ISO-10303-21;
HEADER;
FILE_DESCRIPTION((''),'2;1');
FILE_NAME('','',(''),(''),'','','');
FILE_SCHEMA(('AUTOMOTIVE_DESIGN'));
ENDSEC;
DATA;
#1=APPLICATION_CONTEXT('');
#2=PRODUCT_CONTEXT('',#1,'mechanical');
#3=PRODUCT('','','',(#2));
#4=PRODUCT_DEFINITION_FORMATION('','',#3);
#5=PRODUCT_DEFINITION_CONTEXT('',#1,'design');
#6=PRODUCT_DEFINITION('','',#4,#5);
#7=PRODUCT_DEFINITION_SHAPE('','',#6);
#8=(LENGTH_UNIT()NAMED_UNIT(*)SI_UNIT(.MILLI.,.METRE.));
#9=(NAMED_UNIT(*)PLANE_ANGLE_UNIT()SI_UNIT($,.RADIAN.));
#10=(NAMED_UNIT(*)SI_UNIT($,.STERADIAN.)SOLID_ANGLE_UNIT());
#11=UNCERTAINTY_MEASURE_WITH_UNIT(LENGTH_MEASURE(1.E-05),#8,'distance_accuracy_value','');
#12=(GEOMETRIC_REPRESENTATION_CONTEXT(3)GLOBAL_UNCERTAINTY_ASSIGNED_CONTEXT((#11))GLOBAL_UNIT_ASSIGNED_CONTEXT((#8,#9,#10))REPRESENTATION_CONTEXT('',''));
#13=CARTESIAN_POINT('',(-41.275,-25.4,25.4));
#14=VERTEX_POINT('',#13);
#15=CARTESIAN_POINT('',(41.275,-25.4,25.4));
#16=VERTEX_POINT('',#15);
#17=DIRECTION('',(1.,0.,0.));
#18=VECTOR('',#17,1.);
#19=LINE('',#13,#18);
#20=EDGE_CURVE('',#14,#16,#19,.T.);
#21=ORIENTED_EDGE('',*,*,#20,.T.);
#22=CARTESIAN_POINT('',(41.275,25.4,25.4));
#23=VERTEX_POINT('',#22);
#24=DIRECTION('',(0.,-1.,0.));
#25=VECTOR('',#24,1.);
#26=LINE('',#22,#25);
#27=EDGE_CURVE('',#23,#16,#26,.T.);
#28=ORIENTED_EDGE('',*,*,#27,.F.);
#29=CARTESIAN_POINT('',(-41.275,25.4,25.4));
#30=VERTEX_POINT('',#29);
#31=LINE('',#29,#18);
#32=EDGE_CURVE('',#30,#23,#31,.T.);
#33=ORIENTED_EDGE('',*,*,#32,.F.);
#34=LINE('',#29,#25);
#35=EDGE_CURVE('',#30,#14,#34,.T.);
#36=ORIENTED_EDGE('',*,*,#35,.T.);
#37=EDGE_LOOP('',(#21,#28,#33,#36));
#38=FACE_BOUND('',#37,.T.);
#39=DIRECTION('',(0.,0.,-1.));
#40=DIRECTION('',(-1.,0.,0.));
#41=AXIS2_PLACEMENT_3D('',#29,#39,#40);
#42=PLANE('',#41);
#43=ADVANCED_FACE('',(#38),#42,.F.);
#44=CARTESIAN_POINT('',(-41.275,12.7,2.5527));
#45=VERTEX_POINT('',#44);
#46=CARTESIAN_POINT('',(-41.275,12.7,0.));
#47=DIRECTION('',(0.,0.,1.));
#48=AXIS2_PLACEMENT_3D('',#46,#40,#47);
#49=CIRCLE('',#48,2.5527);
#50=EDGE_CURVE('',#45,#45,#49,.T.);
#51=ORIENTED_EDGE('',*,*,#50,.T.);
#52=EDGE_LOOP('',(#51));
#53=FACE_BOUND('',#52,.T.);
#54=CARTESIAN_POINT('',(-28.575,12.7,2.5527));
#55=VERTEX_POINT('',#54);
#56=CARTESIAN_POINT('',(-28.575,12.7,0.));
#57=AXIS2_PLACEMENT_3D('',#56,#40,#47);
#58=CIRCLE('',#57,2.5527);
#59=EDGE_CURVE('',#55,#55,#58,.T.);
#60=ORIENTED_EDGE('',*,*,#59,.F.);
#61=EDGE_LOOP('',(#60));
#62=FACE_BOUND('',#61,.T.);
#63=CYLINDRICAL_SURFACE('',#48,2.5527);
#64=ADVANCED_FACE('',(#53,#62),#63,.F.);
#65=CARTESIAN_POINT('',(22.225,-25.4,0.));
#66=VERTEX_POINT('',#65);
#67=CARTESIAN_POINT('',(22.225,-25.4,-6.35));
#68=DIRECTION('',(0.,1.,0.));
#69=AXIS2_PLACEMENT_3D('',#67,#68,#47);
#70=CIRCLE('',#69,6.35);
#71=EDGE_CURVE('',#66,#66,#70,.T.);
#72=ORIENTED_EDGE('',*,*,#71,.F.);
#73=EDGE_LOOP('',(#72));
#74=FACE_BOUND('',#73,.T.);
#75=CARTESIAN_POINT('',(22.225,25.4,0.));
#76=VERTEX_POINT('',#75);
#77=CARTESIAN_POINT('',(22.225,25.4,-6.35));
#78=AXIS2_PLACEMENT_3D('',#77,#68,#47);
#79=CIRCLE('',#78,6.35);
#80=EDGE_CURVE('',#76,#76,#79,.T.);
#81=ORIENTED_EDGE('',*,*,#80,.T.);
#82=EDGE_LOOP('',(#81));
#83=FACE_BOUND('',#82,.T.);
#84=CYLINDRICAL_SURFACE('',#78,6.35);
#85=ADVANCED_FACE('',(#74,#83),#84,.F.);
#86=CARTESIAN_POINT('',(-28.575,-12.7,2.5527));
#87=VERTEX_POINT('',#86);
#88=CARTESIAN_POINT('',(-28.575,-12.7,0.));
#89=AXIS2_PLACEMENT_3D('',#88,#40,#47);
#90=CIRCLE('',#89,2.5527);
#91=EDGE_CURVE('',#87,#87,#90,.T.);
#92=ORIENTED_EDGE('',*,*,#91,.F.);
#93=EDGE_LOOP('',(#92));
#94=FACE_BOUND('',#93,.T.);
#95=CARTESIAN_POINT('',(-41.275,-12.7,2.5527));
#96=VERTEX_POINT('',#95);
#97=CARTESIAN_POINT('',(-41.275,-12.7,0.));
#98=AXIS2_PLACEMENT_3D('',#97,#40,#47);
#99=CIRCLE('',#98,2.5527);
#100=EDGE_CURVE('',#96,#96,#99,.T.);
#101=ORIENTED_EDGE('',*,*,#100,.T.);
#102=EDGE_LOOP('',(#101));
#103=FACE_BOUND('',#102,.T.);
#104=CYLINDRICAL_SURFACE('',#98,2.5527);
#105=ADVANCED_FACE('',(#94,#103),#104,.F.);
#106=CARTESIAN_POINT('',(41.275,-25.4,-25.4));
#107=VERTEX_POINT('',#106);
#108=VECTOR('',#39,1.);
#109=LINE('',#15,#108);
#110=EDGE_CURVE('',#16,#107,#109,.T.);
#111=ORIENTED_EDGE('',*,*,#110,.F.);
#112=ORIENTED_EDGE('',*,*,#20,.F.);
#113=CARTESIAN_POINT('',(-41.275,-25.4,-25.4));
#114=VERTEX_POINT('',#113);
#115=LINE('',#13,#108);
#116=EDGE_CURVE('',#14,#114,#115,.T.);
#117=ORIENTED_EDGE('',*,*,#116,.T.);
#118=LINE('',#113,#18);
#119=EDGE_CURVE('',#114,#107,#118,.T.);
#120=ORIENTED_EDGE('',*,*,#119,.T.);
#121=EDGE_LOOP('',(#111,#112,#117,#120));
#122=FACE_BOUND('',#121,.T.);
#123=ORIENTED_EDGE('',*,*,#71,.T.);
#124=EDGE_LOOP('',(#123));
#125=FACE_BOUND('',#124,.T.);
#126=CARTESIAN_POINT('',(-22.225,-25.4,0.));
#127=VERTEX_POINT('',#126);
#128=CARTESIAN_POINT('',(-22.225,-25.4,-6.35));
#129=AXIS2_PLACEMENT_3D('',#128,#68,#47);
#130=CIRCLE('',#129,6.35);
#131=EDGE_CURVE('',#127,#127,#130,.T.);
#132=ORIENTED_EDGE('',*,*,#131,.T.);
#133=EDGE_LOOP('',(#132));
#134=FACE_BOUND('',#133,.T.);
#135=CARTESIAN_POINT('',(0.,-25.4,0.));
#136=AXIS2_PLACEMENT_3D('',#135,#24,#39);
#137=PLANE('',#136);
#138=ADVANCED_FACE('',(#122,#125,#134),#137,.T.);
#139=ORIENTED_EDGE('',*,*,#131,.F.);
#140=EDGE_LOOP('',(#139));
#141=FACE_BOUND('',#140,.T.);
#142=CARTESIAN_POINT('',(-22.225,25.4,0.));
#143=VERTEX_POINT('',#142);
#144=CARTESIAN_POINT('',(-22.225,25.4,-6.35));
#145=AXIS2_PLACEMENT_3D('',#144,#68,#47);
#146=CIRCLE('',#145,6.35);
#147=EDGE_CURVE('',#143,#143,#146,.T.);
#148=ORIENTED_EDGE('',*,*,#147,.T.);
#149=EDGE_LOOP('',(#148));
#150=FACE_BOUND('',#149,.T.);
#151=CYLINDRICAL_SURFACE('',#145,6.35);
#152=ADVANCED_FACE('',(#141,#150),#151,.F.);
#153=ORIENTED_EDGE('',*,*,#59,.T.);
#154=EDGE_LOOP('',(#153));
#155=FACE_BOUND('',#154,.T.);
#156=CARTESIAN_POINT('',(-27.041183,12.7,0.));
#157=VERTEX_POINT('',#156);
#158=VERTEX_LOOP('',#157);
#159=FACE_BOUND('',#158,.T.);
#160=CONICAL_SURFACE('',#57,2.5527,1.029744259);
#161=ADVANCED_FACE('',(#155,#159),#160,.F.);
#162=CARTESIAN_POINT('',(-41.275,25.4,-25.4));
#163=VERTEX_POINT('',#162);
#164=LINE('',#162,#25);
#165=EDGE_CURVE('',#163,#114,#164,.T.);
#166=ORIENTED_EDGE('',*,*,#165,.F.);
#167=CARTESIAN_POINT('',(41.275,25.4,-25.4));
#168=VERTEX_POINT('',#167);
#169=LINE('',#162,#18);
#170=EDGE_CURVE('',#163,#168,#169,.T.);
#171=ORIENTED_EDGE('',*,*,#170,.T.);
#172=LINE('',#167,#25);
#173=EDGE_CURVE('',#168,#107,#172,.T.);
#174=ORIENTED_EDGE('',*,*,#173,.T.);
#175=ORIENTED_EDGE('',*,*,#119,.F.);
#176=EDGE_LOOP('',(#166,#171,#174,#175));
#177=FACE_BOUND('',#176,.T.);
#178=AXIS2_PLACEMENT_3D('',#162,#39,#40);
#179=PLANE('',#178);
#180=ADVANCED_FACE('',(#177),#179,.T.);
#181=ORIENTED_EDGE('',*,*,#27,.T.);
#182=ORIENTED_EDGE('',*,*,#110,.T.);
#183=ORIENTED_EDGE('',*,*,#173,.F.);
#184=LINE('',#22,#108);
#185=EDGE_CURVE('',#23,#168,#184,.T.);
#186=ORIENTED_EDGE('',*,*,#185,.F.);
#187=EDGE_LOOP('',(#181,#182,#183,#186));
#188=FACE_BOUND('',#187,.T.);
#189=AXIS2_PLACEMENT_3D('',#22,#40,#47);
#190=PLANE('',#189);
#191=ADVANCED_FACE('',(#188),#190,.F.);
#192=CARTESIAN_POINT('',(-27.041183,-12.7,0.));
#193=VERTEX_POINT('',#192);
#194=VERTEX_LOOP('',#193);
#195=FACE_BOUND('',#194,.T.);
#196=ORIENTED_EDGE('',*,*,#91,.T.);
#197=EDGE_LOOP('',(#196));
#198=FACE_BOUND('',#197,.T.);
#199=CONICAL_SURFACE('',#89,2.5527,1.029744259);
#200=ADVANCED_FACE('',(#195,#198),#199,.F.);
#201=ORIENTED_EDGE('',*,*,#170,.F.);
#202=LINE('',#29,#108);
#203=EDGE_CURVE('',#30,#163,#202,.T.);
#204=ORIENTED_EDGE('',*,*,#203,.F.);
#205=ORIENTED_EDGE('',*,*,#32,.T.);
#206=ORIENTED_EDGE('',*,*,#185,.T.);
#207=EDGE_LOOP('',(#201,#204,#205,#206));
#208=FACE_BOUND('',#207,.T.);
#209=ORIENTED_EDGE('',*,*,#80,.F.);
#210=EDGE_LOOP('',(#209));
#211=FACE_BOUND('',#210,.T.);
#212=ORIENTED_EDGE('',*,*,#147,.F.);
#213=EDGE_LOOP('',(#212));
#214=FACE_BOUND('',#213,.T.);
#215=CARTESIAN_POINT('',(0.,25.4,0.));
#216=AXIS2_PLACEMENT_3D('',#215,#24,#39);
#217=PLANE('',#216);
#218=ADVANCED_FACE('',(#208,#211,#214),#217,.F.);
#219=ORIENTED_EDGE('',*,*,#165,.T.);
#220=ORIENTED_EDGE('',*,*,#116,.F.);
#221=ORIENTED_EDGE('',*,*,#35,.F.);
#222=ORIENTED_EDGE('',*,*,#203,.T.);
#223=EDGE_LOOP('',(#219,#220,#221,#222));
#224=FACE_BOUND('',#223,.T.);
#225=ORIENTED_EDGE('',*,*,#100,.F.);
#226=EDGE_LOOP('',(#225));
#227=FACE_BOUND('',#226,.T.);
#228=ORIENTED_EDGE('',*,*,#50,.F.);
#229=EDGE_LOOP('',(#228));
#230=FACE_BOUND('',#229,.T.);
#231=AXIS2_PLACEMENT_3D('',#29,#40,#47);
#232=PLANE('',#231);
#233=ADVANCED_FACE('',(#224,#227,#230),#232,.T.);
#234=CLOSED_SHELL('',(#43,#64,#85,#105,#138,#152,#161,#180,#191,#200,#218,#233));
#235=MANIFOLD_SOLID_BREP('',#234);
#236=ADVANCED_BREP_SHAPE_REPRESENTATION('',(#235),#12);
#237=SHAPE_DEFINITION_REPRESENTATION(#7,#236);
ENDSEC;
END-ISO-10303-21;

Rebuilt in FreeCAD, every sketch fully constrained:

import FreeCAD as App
import Part
import Sketcher

V = App.Vector
Q = App.Units.Quantity


def add_polygon(sketch, points):
    """Adds a closed chain of lines whose ends are joined by coincident constraints."""
    first, n = sketch.GeometryCount, len(points)
    for a, b in zip(points, points[1:] + points[:1]):
        sketch.addGeometry(Part.LineSegment(App.Vector(*a, 0), App.Vector(*b, 0)), False)
    for i in range(n):
        sketch.addConstraint(Sketcher.Constraint("Coincident", first + i, 2, first + (i + 1) % n, 1))

doc = App.newDocument("Part")
body = doc.addObject("PartDesign::Body", "Body")

# Sketch on XZ plane
sketch1 = doc.addObject("Sketcher::SketchObject", "Sketch")
body.addObject(sketch1)
sketch1.AttachmentSupport = (doc.XZ_Plane, [""])
sketch1.MapMode = "FlatFace"
add_polygon(sketch1, [(-41, -25), (-41, 25), (41, 25), (41, -25)])  # lines 0-3
sketch1.addConstraint([
    Sketcher.Constraint("Vertical", 0),
    Sketcher.Constraint("Horizontal", 1),
    Sketcher.Constraint("Vertical", 2),
    Sketcher.Constraint("Horizontal", 3),
    Sketcher.Constraint("Symmetric", 0, 2, 2, 2, -1, 1),
    Sketcher.Constraint("DistanceY", 0, 1, 0, 2, Q("2 in")),
    Sketcher.Constraint("DistanceX", 1, 1, 1, 2, Q("3.25 in")),
])
pad1 = doc.addObject("PartDesign::Pad", "Pad")
body.addObject(pad1)
pad1.Profile = sketch1
pad1.Length = Q("2 in")
pad1.Midplane = True

# Sketch on XZ plane
sketch2 = doc.addObject("Sketcher::SketchObject", "Sketch001")
body.addObject(sketch2)
sketch2.AttachmentSupport = (doc.XZ_Plane, [""])
sketch2.MapMode = "FlatFace"
sketch2.AttachmentOffset = App.Placement(V(0, 0, -1 * 25.4), App.Rotation())
sketch2.addGeometry([
    Part.Circle(V(22, -6, 0), V(0, 0, 1), 6),
    Part.Circle(V(-22, -6, 0), V(0, 0, 1), 6),
], False)
sketch2.addConstraint([
    Sketcher.Constraint("Equal", 0, 1),
    Sketcher.Constraint("Symmetric", 0, 3, 1, 3, -2),
    Sketcher.Constraint("Diameter", 0, Q("0.5 in")),
    Sketcher.Constraint("DistanceY", 0, 3, -1, 1, Q("0.25 in")),
    Sketcher.Constraint("DistanceX", 1, 3, 0, 3, Q("1.75 in")),
])
doc.recompute()
hole = doc.addObject("PartDesign::Hole", "Hole")
body.addObject(hole)
hole.Profile = sketch2
hole.ThreadType = "None"
hole.Diameter = Q("0.5 in")
hole.DepthType = "ThroughAll"
hole.Reversed = True

# Sketch on YZ plane
sketch3 = doc.addObject("Sketcher::SketchObject", "Sketch002")
body.addObject(sketch3)
sketch3.AttachmentSupport = (doc.YZ_Plane, [""])
sketch3.MapMode = "FlatFace"
sketch3.AttachmentOffset = App.Placement(V(0, 0, -1.625 * 25.4), App.Rotation())
sketch3.addGeometry([
    Part.Circle(V(12.7, 0, 0), V(0, 0, 1), 2.6),
    Part.Circle(V(-12.7, 0, 0), V(0, 0, 1), 2.6),
], False)
sketch3.addConstraint([
    Sketcher.Constraint("Equal", 0, 1),
    Sketcher.Constraint("Symmetric", 0, 3, 1, 3, -1, 1),
    Sketcher.Constraint("PointOnObject", 0, 3, -1),
    Sketcher.Constraint("Diameter", 0, Q("0.201 in")),
    Sketcher.Constraint("DistanceX", 1, 3, 0, 3, Q("1 in")),
])
doc.recompute()
hole2 = doc.addObject("PartDesign::Hole", "Hole001")
body.addObject(hole2)
hole2.Profile = sketch3
hole2.ThreadType = "None"
hole2.Diameter = Q("0.201 in")
hole2.DepthType = "Dimension"
hole2.Depth = Q("0.5 in")
hole2.DrillPoint = "Angled"
hole2.DrillPointAngle = 118
hole2.Reversed = True

doc.recompute()
